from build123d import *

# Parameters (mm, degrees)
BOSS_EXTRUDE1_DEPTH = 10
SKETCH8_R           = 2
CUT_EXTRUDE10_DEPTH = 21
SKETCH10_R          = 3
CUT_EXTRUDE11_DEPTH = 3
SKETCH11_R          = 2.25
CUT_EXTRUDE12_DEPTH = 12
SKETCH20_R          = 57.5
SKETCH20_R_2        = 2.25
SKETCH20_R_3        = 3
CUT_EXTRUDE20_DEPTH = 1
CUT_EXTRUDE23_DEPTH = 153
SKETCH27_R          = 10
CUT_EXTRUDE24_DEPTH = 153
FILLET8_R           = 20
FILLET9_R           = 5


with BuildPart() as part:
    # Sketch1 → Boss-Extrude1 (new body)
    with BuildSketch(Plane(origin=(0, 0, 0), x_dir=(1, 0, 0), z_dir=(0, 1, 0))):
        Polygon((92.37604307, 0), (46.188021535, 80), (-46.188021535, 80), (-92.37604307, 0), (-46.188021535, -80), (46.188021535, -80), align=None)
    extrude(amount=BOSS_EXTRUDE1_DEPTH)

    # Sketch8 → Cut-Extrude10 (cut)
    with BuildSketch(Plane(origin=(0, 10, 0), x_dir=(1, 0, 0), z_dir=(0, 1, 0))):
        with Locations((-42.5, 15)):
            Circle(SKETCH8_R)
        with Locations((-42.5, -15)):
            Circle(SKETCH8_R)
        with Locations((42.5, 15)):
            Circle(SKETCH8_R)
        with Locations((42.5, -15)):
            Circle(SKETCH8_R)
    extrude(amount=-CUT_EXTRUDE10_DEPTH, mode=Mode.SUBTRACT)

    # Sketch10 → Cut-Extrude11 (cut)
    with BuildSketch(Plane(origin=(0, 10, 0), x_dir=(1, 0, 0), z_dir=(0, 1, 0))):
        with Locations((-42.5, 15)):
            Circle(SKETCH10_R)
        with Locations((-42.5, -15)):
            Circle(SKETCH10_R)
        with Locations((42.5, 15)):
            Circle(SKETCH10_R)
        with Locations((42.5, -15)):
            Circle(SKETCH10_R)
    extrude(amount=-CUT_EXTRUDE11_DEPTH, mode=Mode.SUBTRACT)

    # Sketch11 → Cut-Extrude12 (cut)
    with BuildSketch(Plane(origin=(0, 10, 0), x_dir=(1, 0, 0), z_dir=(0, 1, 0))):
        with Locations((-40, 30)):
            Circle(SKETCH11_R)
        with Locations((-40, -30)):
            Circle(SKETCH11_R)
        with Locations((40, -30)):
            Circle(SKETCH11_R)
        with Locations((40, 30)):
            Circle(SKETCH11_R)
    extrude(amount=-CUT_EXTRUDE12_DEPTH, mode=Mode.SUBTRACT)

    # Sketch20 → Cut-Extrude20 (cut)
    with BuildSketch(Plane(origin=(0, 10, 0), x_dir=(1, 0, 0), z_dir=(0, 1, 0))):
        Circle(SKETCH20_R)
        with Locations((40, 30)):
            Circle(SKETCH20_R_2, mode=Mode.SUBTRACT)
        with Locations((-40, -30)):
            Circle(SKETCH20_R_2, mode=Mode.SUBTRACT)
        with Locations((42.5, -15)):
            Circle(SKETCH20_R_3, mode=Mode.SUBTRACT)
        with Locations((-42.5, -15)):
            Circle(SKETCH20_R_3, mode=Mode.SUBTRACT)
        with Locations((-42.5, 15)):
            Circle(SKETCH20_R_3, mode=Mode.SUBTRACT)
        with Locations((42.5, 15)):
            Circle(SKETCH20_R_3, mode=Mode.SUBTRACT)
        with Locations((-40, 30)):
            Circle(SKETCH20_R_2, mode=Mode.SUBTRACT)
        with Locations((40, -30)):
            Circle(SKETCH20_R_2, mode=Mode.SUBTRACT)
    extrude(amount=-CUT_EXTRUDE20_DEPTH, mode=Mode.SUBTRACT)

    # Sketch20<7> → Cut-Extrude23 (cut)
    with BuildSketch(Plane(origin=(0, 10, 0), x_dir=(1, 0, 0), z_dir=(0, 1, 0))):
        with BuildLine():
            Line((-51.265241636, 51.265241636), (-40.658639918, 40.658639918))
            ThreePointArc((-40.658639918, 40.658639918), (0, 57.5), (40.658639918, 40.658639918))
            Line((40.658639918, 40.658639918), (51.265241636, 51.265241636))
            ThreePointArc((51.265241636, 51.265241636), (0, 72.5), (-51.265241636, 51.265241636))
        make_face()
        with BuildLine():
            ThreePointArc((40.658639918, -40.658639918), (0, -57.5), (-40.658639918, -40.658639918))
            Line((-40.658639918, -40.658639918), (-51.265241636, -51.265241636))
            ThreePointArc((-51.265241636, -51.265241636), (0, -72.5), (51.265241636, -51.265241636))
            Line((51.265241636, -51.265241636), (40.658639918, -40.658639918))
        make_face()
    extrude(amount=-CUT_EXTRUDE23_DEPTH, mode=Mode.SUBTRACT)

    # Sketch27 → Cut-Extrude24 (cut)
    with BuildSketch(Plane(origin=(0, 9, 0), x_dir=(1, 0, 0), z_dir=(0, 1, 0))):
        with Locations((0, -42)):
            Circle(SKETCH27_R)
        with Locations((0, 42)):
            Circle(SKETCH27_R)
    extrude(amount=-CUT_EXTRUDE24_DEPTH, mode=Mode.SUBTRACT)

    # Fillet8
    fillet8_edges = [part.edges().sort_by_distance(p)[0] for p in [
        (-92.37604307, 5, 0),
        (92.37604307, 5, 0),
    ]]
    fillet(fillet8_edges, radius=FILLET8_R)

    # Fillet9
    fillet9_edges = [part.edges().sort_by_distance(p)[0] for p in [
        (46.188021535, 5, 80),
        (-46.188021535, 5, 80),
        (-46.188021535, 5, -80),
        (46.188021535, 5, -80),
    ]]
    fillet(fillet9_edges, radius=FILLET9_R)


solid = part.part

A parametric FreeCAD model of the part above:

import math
import FreeCAD as App
import Part
import Sketcher

V = App.Vector
Q = App.Units.Quantity


def edges_at(feature, points):
    """Names of the edges that pass closest to the given points."""
    edges = feature.Shape.Edges
    near = lambda p: min(range(len(edges)), key=lambda i: edges[i].distToShape(Part.Vertex(*p))[0])
    return sorted({f"Edge{near(p) + 1}" for p in points})


def add_polygon(sketch, points):
    """Adds a closed chain of lines whose ends are joined by coincident constraints."""
    first, n = sketch.GeometryCount, len(points)
    for a, b in zip(points, points[1:] + points[:1]):
        sketch.addGeometry(Part.LineSegment(App.Vector(*a, 0), App.Vector(*b, 0)), False)
    for i in range(n):
        sketch.addConstraint(Sketcher.Constraint("Coincident", first + i, 2, first + (i + 1) % n, 1))

doc = App.newDocument("Part")
params = doc.addObject("Spreadsheet::Sheet", "Params")
for row, (alias, value) in enumerate([
    ("pad1_length", "10 mm"),
    ("sketch2_diameter", "4 mm"),
    ("pocket1_length", "21 mm"),
    ("sketch3_diameter", "6 mm"),
    ("pocket2_length", "3 mm"),
    ("sketch4_diameter", "4.5 mm"),
    ("pocket3_length", "12 mm"),
    ("sketch5_diameter", "115 mm"),
    ("sketch5_diameter2", "6 mm"),
    ("sketch5_diameter3", "4.5 mm"),
    ("pocket4_length", "1 mm"),
    ("sketch6_radius", "57.5 mm"),
    ("sketch6_radius2", "72.5 mm"),
    ("pocket5_length", "153 mm"),
    ("sketch7_diameter", "20 mm"),
    ("pocket6_length", "153 mm"),
    ("fillet_radius", "20 mm"),
    ("fillet2_radius", "5 mm"),
], start=1):
    params.set(f"A{row}", alias)
    params.set(f"B{row}", "=" + value)
    params.setAlias(f"B{row}", alias)

body = doc.addObject("PartDesign::Body", "Body")

# Sketch on XZ plane
sketch1 = doc.addObject("Sketcher::SketchObject", "Sketch")
body.addObject(sketch1)
sketch1.AttachmentSupport = (doc.XZ_Plane, [""])
sketch1.MapMode = "FlatFace"
add_polygon(sketch1, [(92, 0), (46, -80), (-46, -80), (-92, 0), (-46, 80), (46, 80)])  # lines 0-5
sketch1.addConstraint([
    Sketcher.Constraint("Horizontal", 1),
    Sketcher.Constraint("Horizontal", 4),
    Sketcher.Constraint("Symmetric", 0, 2, 3, 2, -1, 1),
    Sketcher.Constraint("Symmetric", 2, 2, 5, 2, -1, 1),
    Sketcher.Constraint("PointOnObject", 2, 2, -1),
    Sketcher.Constraint("Parallel", 2, 5),
    Sketcher.Constraint("Vertical", 1, 2, 3, 2),
    Sketcher.Constraint("Angle", 0, Q("-120 deg")),
    Sketcher.Constraint("DistanceY", 0, 2, -1, 1, Q("80 mm")),
    Sketcher.Constraint("DistanceX", 1, 2, 1, 1, Q("92.376043 mm")),
])
pad1 = doc.addObject("PartDesign::Pad", "Pad")
body.addObject(pad1)
pad1.Profile = sketch1
pad1.setExpression("Length", "Params.pad1_length")
pad1.Reversed = True

# Sketch on XZ plane
sketch2 = doc.addObject("Sketcher::SketchObject", "Sketch001")
body.addObject(sketch2)
sketch2.AttachmentSupport = (doc.XZ_Plane, [""])
sketch2.MapMode = "FlatFace"
sketch2.AttachmentOffset = App.Placement(V(0, 0, -10), App.Rotation())
sketch2.addGeometry([
    Part.Circle(V(-42.5, -15, 0), V(0, 0, 1), 2),
    Part.Circle(V(-42.5, 15, 0), V(0, 0, 1), 2),
    Part.Circle(V(42.5, -15, 0), V(0, 0, 1), 2),
    Part.Circle(V(42.5, 15, 0), V(0, 0, 1), 2),
], False)
sketch2.addConstraint([
    Sketcher.Constraint("Equal", 0, 1),
    Sketcher.Constraint("Equal", 1, 2),
    Sketcher.Constraint("Equal", 2, 3),
    Sketcher.Constraint("Symmetric", 1, 3, 2, 3, -1, 1),
    Sketcher.Constraint("Symmetric", 0, 3, 3, 3, -1, 1),
    Sketcher.Constraint("Symmetric", 0, 3, 2, 3, -2),
    Sketcher.Constraint("Diameter", 0, Q("4 mm")),
    Sketcher.Constraint("DistanceY", 0, 3, -1, 1, Q("15 mm")),
    Sketcher.Constraint("DistanceX", 0, 3, 2, 3, Q("85 mm")),
])
sketch2.setExpression("Constraints[6]", "Params.sketch2_diameter")
pocket1 = doc.addObject("PartDesign::Pocket", "Pocket")
body.addObject(pocket1)
pocket1.Profile = sketch2
pocket1.setExpression("Length", "Params.pocket1_length")
pocket1.Reversed = True

# Sketch on XZ plane
sketch3 = doc.addObject("Sketcher::SketchObject", "Sketch002")
body.addObject(sketch3)
sketch3.AttachmentSupport = (doc.XZ_Plane, [""])
sketch3.MapMode = "FlatFace"
sketch3.AttachmentOffset = App.Placement(V(0, 0, -10), App.Rotation())
sketch3.addGeometry([
    Part.Circle(V(-42.5, -15, 0), V(0, 0, 1), 3),
    Part.Circle(V(-42.5, 15, 0), V(0, 0, 1), 3),
    Part.Circle(V(42.5, -15, 0), V(0, 0, 1), 3),
    Part.Circle(V(42.5, 15, 0), V(0, 0, 1), 3),
], False)
sketch3.addConstraint([
    Sketcher.Constraint("Equal", 0, 1),
    Sketcher.Constraint("Equal", 1, 2),
    Sketcher.Constraint("Equal", 2, 3),
    Sketcher.Constraint("Symmetric", 1, 3, 2, 3, -1, 1),
    Sketcher.Constraint("Symmetric", 0, 3, 3, 3, -1, 1),
    Sketcher.Constraint("Symmetric", 0, 3, 2, 3, -2),
    Sketcher.Constraint("Diameter", 0, Q("6 mm")),
    Sketcher.Constraint("DistanceY", 0, 3, -1, 1, Q("15 mm")),
    Sketcher.Constraint("DistanceX", 0, 3, 2, 3, Q("85 mm")),
])
sketch3.setExpression("Constraints[6]", "Params.sketch3_diameter")
pocket2 = doc.addObject("PartDesign::Pocket", "Pocket001")
body.addObject(pocket2)
pocket2.Profile = sketch3
pocket2.setExpression("Length", "Params.pocket2_length")
pocket2.Reversed = True

# Sketch on XZ plane
sketch4 = doc.addObject("Sketcher::SketchObject", "Sketch003")
body.addObject(sketch4)
sketch4.AttachmentSupport = (doc.XZ_Plane, [""])
sketch4.MapMode = "FlatFace"
sketch4.AttachmentOffset = App.Placement(V(0, 0, -10), App.Rotation())
sketch4.addGeometry([
    Part.Circle(V(-40, -30, 0), V(0, 0, 1), 2.2),
    Part.Circle(V(-40, 30, 0), V(0, 0, 1), 2.2),
    Part.Circle(V(40, 30, 0), V(0, 0, 1), 2.2),
    Part.Circle(V(40, -30, 0), V(0, 0, 1), 2.2),
], False)
sketch4.addConstraint([
    Sketcher.Constraint("Equal", 0, 1),
    Sketcher.Constraint("Equal", 1, 2),
    Sketcher.Constraint("Equal", 2, 3),
    Sketcher.Constraint("Symmetric", 0, 3, 2, 3, -1, 1),
    Sketcher.Constraint("Symmetric", 1, 3, 3, 3, -1, 1),
    Sketcher.Constraint("Symmetric", 1, 3, 2, 3, -2),
    Sketcher.Constraint("Diameter", 0, Q("4.5 mm")),
    Sketcher.Constraint("DistanceX", 0, 3, -1, 1, Q("40 mm")),
    Sketcher.Constraint("DistanceY", 0, 3, -1, 1, Q("30 mm")),
])
sketch4.setExpression("Constraints[6]", "Params.sketch4_diameter")
pocket3 = doc.addObject("PartDesign::Pocket", "Pocket002")
body.addObject(pocket3)
pocket3.Profile = sketch4
pocket3.setExpression("Length", "Params.pocket3_length")
pocket3.Reversed = True

# Sketch on XZ plane
sketch5 = doc.addObject("Sketcher::SketchObject", "Sketch004")
body.addObject(sketch5)
sketch5.AttachmentSupport = (doc.XZ_Plane, [""])
sketch5.MapMode = "FlatFace"
sketch5.AttachmentOffset = App.Placement(V(0, 0, -10), App.Rotation())
sketch5.addGeometry([
    Part.Circle(V(0, 0, 0), V(0, 0, 1), 57.5),  # 0
    Part.Circle(V(-40, 30, 0), V(0, 0, 1), 2.2),  # 1
    Part.Circle(V(-42.5, 15, 0), V(0, 0, 1), 3),  # 2
    Part.Circle(V(40, 30, 0), V(0, 0, 1), 2.2),  # 3
    Part.Circle(V(42.5, 15, 0), V(0, 0, 1), 3),  # 4
    Part.Circle(V(-42.5, -15, 0), V(0, 0, 1), 3),  # 5
    Part.Circle(V(-40, -30, 0), V(0, 0, 1), 2.2),  # 6
    Part.Circle(V(42.5, -15, 0), V(0, 0, 1), 3),  # 7
    Part.Circle(V(40, -30, 0), V(0, 0, 1), 2.2),  # 8
], False)
sketch5.addConstraint([
    Sketcher.Constraint("Coincident", 0, 3, -1, 1),
    Sketcher.Constraint("Equal", 1, 3),
    Sketcher.Constraint("Equal", 2, 4),
    Sketcher.Constraint("Equal", 4, 5),
    Sketcher.Constraint("Equal", 3, 6),
    Sketcher.Constraint("Equal", 5, 7),
    Sketcher.Constraint("Equal", 6, 8),
    Sketcher.Constraint("Symmetric", 4, 3, 5, 3, -1, 1),
    Sketcher.Constraint("Symmetric", 3, 3, 6, 3, -1, 1),
    Sketcher.Constraint("Symmetric", 2, 3, 7, 3, -1, 1),
    Sketcher.Constraint("Symmetric", 1, 3, 8, 3, -1, 1),
    Sketcher.Constraint("Symmetric", 1, 3, 3, 3, -2),
    Sketcher.Constraint("Symmetric", 2, 3, 4, 3, -2),
    Sketcher.Constraint("Diameter", 0, Q("115 mm")),
    Sketcher.Constraint("Diameter", 2, Q("6 mm")),
    Sketcher.Constraint("Diameter", 1, Q("4.5 mm")),
    Sketcher.Constraint("DistanceX", 1, 3, -1, 1, Q("40 mm")),
    Sketcher.Constraint("DistanceY", -1, 1, 1, 3, Q("30 mm")),
    Sketcher.Constraint("DistanceY", -1, 1, 2, 3, Q("15 mm")),
    Sketcher.Constraint("DistanceX", 2, 3, 4, 3, Q("85 mm")),
])
sketch5.setExpression("Constraints[13]", "Params.sketch5_diameter")
sketch5.setExpression("Constraints[14]", "Params.sketch5_diameter2")
sketch5.setExpression("Constraints[15]", "Params.sketch5_diameter3")
pocket4 = doc.addObject("PartDesign::Pocket", "Pocket003")
body.addObject(pocket4)
pocket4.Profile = sketch5
pocket4.setExpression("Length", "Params.pocket4_length")
pocket4.Reversed = True

# Sketch on XZ plane
sketch6 = doc.addObject("Sketcher::SketchObject", "Sketch005")
body.addObject(sketch6)
sketch6.AttachmentSupport = (doc.XZ_Plane, [""])
sketch6.MapMode = "FlatFace"
sketch6.AttachmentOffset = App.Placement(V(0, 0, -10), App.Rotation())
sketch6.addGeometry([
    Part.LineSegment(V(-51, -51, 0), V(-41, -41, 0)),  # 0
    Part.ArcOfCircle(Part.Circle(V(0, 0, 0), V(0, 0, 1), 57), math.radians(-135), math.radians(-45)),  # 1
    Part.LineSegment(V(41, -41, 0), V(51, -51, 0)),  # 2
    Part.ArcOfCircle(Part.Circle(V(0, 0, 0), V(0, 0, 1), 72), math.radians(-135), math.radians(-45)),  # 3
    Part.ArcOfCircle(Part.Circle(V(0, 0, 0), V(0, 0, 1), 57), math.radians(45), math.radians(135)),  # 4
    Part.LineSegment(V(-41, 41, 0), V(-51, 51, 0)),  # 5
    Part.ArcOfCircle(Part.Circle(V(0, 0, 0), V(0, 0, 1), 72), math.radians(45), math.radians(135)),  # 6
    Part.LineSegment(V(51, 51, 0), V(41, 41, 0)),  # 7
], False)
sketch6.addConstraint([
    Sketcher.Constraint("Coincident", 0, 2, 1, 1),
    Sketcher.Constraint("Coincident", 1, 2, 2, 1),
    Sketcher.Constraint("Coincident", 2, 2, 3, 2),
    Sketcher.Constraint("Coincident", 3, 1, 0, 1),
    Sketcher.Constraint("Coincident", 4, 2, 5, 1),
    Sketcher.Constraint("Coincident", 5, 2, 6, 2),
    Sketcher.Constraint("Coincident", 6, 1, 7, 1),
    Sketcher.Constraint("Coincident", 7, 2, 4, 1),
    Sketcher.Constraint("Coincident", 1, 3, -1, 1),
    Sketcher.Constraint("Coincident", 3, 3, -1, 1),
    Sketcher.Constraint("Coincident", 4, 3, -1, 1),
    Sketcher.Constraint("Coincident", 6, 3, -1, 1),
    Sketcher.Constraint("Equal", 1, 4),
    Sketcher.Constraint("Equal", 3, 6),
    Sketcher.Constraint("Perpendicular", 0, 2),
    Sketcher.Constraint("Parallel", 2, 5),
    Sketcher.Constraint("Perpendicular", 5, 7),
    Sketcher.Constraint("Horizontal", 0, 2, 1, 2),
    Sketcher.Constraint("Horizontal", 2, 2, 3, 1),
    Sketcher.Constraint("Horizontal", 5, 2, 6, 1),
    Sketcher.Constraint("Vertical", 0, 2, 4, 2),
    Sketcher.Constraint("Radius", 1, Q("57.5 mm")),
    Sketcher.Constraint("Radius", 3, Q("72.5 mm")),
    Sketcher.Constraint("DistanceX", 0, 2, -1, 1, Q("40.65864 mm")),
])
sketch6.setExpression("Constraints[21]", "Params.sketch6_radius")
sketch6.setExpression("Constraints[22]", "Params.sketch6_radius2")
pocket5 = doc.addObject("PartDesign::Pocket", "Pocket004")
body.addObject(pocket5)
pocket5.Profile = sketch6
pocket5.setExpression("Length", "Params.pocket5_length")
pocket5.Reversed = True

# Sketch on XZ plane
sketch7 = doc.addObject("Sketcher::SketchObject", "Sketch006")
body.addObject(sketch7)
sketch7.AttachmentSupport = (doc.XZ_Plane, [""])
sketch7.MapMode = "FlatFace"
sketch7.AttachmentOffset = App.Placement(V(0, 0, -9), App.Rotation())
sketch7.addGeometry([
    Part.Circle(V(0, 42, 0), V(0, 0, 1), 10),
    Part.Circle(V(0, -42, 0), V(0, 0, 1), 10),
], False)
sketch7.addConstraint([
    Sketcher.Constraint("Equal", 0, 1),
    Sketcher.Constraint("Symmetric", 0, 3, 1, 3, -1, 1),
    Sketcher.Constraint("PointOnObject", 0, 3, -2),
    Sketcher.Constraint("Diameter", 0, Q("20 mm")),
    Sketcher.Constraint("DistanceY", -1, 1, 0, 3, Q("42 mm")),
])
sketch7.setExpression("Constraints[3]", "Params.sketch7_diameter")
pocket6 = doc.addObject("PartDesign::Pocket", "Pocket005")
body.addObject(pocket6)
pocket6.Profile = sketch7
pocket6.setExpression("Length", "Params.pocket6_length")
pocket6.Reversed = True
doc.recompute()

fillet = doc.addObject("PartDesign::Fillet", "Fillet")
body.addObject(fillet)
fillet.Base = (pocket6, edges_at(pocket6, [(-92.376, 5, 0), (92.376, 5, 0)]))
fillet.setExpression("Radius", "Params.fillet_radius")
doc.recompute()

fillet2 = doc.addObject("PartDesign::Fillet", "Fillet001")
body.addObject(fillet2)
fillet2.Base = (fillet, edges_at(fillet, [
    (46.188, 5, 80),
    (-46.188, 5, 80),
    (-46.188, 5, -80),
    (46.188, 5, -80),
]))
fillet2.setExpression("Radius", "Params.fillet2_radius")

doc.recompute()
